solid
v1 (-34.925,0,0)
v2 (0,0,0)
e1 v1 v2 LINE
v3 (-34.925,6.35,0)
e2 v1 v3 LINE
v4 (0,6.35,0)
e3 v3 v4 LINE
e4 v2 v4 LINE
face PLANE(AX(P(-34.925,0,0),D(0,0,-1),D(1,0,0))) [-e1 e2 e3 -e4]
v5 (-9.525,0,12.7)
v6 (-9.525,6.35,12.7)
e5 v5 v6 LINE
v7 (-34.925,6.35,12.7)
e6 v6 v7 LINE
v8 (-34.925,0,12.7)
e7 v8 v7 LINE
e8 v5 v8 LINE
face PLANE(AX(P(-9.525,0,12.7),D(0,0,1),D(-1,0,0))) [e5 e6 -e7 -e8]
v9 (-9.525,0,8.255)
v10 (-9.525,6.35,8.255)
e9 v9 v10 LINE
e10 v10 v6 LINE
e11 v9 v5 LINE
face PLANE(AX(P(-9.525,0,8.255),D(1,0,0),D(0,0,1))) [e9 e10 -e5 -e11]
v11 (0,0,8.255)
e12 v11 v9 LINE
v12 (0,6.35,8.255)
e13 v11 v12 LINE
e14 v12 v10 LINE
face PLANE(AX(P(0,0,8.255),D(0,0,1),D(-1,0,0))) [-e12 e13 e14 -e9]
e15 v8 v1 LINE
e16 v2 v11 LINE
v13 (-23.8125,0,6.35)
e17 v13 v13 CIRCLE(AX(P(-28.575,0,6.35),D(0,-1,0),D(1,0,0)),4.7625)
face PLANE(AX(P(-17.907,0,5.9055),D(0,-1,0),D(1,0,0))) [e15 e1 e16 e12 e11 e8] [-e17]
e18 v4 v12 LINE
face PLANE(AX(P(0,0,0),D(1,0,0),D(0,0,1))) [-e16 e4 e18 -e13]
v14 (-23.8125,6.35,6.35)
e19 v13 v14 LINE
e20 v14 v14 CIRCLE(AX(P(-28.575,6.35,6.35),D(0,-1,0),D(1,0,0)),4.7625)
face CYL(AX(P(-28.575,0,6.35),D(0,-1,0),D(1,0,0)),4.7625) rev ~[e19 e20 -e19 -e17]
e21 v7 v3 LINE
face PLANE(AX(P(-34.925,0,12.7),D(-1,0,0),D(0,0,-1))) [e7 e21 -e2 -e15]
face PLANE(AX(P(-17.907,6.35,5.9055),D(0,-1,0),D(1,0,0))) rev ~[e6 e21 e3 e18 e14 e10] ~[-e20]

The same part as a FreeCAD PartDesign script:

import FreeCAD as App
import Part
import Sketcher
from FreeCAD import Vector
Q = App.Units.Quantity

doc = App.newDocument("Part")
body = doc.addObject("PartDesign::Body", "Body")

sketch1 = body.newObject("Sketcher::SketchObject", "Sketch")
sketch1.AttachmentSupport = (doc.getObject("XZ_Plane"), [""])
sketch1.MapMode = "FlatFace"
sketch1.addGeometry([
    Part.LineSegment(Vector(-34.925, 0, 0), Vector(0, 0, 0)),
    Part.LineSegment(Vector(0, 0, 0), Vector(0, 8.255, 0)),
    Part.LineSegment(Vector(0, 8.255, 0), Vector(-9.525, 8.255, 0)),
    Part.LineSegment(Vector(-9.525, 8.255, 0), Vector(-9.525, 12.7, 0)),
    Part.LineSegment(Vector(-9.525, 12.7, 0), Vector(-34.925, 12.7, 0)),
    Part.LineSegment(Vector(-34.925, 12.7, 0), Vector(-34.925, 0, 0)),
    Part.Circle(Vector(-28.575, 6.35, 0), Vector(0, 0, 1), 4.7625),
], False)
sketch1.addConstraint([
    Sketcher.Constraint("Coincident", 0, 2, 1, 1),
    Sketcher.Constraint("Coincident", 1, 2, 2, 1),
    Sketcher.Constraint("Coincident", 2, 2, 3, 1),
    Sketcher.Constraint("Coincident", 3, 2, 4, 1),
    Sketcher.Constraint("Coincident", 4, 2, 5, 1),
    Sketcher.Constraint("Coincident", 5, 2, 0, 1),
    Sketcher.Constraint("Horizontal", 0),
    Sketcher.Constraint("Vertical", 1),
    Sketcher.Constraint("Horizontal", 2),
    Sketcher.Constraint("Vertical", 3),
    Sketcher.Constraint("Horizontal", 4),
    Sketcher.Constraint("Vertical", 5),
    Sketcher.Constraint("Coincident", 0, 2, -1, 1),
    Sketcher.Constraint("DistanceX", 4, 2, 4, 1, Q("1 in")),
    Sketcher.Constraint("Diameter", 6, Q("0.375 in")),
    Sketcher.Constraint("DistanceY", 5, 2, 5, 1, Q("0.5 in")),
    Sketcher.Constraint("DistanceX", 0, 1, 0, 2, Q("1.375 in")),
    Sketcher.Constraint("DistanceY", 1, 1, 1, 2, Q("0.325 in")),
    Sketcher.Constraint("DistanceY", -1, 1, 6, 3, Q("0.25 in")),
    Sketcher.Constraint("DistanceX", 6, 3, 2, 2, Q("0.75 in")),
])
pad1 = body.newObject("PartDesign::Pad", "Pad")
pad1.Profile = sketch1
pad1.Length = Q("0.25 in")
pad1.Reversed = True

doc.recompute()
